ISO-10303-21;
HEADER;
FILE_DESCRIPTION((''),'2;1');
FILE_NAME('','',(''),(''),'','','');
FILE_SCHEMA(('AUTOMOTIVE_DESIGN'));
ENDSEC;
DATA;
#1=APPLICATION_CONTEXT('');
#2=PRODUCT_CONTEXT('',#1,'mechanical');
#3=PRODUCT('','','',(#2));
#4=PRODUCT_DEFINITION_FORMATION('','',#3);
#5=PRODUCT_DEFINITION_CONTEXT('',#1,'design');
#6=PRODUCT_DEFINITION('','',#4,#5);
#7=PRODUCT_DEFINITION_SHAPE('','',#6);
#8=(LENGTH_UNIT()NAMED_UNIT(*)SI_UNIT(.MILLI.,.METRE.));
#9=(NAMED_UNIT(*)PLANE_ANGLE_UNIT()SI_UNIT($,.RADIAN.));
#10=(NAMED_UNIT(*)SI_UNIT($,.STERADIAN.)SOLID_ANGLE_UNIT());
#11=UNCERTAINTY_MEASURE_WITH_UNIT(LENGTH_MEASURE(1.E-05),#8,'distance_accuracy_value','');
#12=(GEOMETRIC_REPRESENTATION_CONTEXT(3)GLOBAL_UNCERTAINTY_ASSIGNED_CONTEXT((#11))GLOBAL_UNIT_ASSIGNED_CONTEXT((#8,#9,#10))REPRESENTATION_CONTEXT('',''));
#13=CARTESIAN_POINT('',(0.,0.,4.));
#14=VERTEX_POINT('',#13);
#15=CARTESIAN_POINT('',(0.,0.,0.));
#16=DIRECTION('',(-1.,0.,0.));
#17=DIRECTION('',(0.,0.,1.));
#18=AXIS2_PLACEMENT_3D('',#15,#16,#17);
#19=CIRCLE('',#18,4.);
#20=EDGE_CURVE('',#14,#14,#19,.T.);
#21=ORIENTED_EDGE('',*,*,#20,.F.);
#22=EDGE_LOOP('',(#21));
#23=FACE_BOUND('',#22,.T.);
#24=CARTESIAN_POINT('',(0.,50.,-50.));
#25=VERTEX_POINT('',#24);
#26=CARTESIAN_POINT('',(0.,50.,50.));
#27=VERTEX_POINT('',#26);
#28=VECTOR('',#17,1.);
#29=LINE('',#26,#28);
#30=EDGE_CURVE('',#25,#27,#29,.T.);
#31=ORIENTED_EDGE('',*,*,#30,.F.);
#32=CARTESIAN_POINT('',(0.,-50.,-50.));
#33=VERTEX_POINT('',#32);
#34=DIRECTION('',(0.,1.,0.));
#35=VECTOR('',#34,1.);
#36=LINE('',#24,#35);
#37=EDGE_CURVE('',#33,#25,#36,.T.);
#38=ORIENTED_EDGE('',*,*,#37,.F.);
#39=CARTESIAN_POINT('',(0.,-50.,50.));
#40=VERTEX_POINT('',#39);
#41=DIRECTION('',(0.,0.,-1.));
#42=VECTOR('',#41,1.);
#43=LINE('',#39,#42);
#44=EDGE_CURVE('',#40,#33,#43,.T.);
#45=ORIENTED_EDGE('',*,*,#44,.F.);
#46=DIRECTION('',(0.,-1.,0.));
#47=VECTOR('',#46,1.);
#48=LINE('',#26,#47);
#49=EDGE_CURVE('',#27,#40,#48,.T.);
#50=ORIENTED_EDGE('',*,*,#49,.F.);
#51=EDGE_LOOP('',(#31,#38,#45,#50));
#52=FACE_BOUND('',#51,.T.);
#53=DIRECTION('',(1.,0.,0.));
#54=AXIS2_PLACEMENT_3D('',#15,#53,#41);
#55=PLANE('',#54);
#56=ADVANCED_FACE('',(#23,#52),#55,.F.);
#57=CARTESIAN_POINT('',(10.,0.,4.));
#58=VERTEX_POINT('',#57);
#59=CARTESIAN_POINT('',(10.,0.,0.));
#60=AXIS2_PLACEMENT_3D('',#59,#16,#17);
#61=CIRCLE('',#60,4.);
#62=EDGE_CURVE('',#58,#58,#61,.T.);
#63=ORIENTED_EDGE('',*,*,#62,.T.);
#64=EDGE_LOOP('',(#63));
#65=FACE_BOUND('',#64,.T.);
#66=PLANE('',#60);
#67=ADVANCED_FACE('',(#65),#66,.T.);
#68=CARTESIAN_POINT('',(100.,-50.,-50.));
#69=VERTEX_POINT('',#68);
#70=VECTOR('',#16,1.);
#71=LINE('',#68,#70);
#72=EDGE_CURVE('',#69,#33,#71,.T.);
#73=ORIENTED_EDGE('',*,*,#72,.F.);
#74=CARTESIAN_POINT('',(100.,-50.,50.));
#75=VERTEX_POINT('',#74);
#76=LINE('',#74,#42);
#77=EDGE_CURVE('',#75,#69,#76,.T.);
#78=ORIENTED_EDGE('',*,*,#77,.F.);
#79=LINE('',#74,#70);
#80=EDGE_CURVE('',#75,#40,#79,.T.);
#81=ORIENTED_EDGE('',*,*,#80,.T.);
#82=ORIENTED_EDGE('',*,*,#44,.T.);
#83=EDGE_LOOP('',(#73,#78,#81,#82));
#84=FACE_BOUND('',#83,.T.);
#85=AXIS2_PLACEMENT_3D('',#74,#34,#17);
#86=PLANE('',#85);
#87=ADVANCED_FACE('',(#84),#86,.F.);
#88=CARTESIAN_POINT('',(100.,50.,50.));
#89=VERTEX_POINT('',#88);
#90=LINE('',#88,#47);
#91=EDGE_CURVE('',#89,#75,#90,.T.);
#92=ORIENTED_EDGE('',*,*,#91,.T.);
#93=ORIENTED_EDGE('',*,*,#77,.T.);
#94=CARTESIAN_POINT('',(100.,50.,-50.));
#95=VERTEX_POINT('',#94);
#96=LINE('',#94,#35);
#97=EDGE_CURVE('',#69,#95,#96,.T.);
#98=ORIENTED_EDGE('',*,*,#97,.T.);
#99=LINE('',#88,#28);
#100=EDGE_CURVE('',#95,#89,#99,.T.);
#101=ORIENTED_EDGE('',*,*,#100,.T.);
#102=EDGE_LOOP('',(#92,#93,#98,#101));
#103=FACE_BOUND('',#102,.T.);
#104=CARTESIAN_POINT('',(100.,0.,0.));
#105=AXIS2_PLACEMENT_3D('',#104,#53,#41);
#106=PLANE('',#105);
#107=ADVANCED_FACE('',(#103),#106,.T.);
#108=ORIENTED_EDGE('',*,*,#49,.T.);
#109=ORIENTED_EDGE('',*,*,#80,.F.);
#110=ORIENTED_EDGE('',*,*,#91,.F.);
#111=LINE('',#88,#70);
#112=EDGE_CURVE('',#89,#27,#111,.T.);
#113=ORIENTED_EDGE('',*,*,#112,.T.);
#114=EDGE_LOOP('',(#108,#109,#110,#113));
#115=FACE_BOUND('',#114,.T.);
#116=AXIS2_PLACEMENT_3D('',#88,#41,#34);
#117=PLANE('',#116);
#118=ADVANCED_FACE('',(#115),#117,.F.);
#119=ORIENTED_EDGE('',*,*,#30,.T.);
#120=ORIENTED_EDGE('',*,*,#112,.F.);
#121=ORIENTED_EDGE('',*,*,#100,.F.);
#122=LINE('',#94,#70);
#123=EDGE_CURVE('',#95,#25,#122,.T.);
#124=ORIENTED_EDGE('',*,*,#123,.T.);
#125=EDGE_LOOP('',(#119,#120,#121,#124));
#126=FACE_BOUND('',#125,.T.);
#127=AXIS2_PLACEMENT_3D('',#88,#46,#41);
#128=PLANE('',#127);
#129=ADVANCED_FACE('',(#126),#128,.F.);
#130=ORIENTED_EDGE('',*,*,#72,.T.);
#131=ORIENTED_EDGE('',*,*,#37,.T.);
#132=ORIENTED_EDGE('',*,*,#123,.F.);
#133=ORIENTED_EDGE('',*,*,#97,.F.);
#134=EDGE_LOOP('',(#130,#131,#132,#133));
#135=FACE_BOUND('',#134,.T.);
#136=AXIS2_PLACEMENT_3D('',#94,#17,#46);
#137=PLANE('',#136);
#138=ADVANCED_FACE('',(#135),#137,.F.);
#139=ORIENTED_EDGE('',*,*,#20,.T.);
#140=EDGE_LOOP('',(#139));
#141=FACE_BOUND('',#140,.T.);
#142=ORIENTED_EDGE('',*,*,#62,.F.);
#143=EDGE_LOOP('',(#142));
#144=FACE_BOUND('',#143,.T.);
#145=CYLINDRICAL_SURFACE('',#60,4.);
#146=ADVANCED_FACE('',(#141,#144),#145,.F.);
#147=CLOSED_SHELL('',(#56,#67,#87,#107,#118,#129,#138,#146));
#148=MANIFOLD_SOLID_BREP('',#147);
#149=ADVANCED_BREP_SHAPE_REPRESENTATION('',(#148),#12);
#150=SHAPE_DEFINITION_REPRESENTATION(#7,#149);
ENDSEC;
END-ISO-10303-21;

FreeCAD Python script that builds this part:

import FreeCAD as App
import Part
import Sketcher

V = App.Vector


def add_polygon(sketch, points):
    """Adds a closed chain of lines whose ends are joined by coincident constraints."""
    first, n = sketch.GeometryCount, len(points)
    for a, b in zip(points, points[1:] + points[:1]):
        sketch.addGeometry(Part.LineSegment(App.Vector(*a, 0), App.Vector(*b, 0)), False)
    for i in range(n):
        sketch.addConstraint(Sketcher.Constraint("Coincident", first + i, 2, first + (i + 1) % n, 1))

doc = App.newDocument("Part")
params = doc.addObject("Spreadsheet::Sheet", "Params")
for row, (alias, value) in enumerate([
    ("sketch1_width", "100 mm"),
    ("pad1_length", "100 mm"),
    ("sketch2_diameter", "8 mm"),
    ("pocket1_length", "10 mm"),
], start=1):
    params.set(f"A{row}", alias)
    params.set(f"B{row}", "=" + value)
    params.setAlias(f"B{row}", alias)

body = doc.addObject("PartDesign::Body", "Body")

sketch1 = body.newObject("Sketcher::SketchObject", "Sketch")
sketch1.AttachmentSupport = (doc.getObject("YZ_Plane"), [""])
sketch1.MapMode = "FlatFace"
add_polygon(sketch1, [(50, 50), (-50, 50), (-50, -50), (50, -50)])
sketch1.addConstraint([
    Sketcher.Constraint("Horizontal", 0),
    Sketcher.Constraint("Vertical", 1),
    Sketcher.Constraint("Horizontal", 2),
    Sketcher.Constraint("Vertical", 3),
    Sketcher.Constraint("Symmetric", 0, 2, 2, 2, -1, 1),
    Sketcher.Constraint("Equal", 2, 1),
    Sketcher.Constraint("DistanceX", 0, 2, 0, 1, 100.0),
])
sketch1.setExpression("Constraints[10]", "Params.sketch1_width")
pad1 = body.newObject("PartDesign::Pad", "Pad")
pad1.Profile = sketch1
pad1.setExpression("Length", "Params.pad1_length")

sketch2 = body.newObject("Sketcher::SketchObject", "Sketch001")
sketch2.AttachmentSupport = (doc.getObject("YZ_Plane"), [""])
sketch2.MapMode = "FlatFace"
sketch2.addGeometry(Part.Circle(V(0, 0, 0), V(0, 0, 1), 4), False)
sketch2.addConstraint([
    Sketcher.Constraint("Coincident", 0, 3, -1, 1),
    Sketcher.Constraint("Diameter", 0, 8.0),
])
sketch2.setExpression("Constraints[1]", "Params.sketch2_diameter")
pocket1 = body.newObject("PartDesign::Pocket", "Pocket")
pocket1.Profile = sketch2
pocket1.setExpression("Length", "Params.pocket1_length")
pocket1.Reversed = True

doc.recompute()
